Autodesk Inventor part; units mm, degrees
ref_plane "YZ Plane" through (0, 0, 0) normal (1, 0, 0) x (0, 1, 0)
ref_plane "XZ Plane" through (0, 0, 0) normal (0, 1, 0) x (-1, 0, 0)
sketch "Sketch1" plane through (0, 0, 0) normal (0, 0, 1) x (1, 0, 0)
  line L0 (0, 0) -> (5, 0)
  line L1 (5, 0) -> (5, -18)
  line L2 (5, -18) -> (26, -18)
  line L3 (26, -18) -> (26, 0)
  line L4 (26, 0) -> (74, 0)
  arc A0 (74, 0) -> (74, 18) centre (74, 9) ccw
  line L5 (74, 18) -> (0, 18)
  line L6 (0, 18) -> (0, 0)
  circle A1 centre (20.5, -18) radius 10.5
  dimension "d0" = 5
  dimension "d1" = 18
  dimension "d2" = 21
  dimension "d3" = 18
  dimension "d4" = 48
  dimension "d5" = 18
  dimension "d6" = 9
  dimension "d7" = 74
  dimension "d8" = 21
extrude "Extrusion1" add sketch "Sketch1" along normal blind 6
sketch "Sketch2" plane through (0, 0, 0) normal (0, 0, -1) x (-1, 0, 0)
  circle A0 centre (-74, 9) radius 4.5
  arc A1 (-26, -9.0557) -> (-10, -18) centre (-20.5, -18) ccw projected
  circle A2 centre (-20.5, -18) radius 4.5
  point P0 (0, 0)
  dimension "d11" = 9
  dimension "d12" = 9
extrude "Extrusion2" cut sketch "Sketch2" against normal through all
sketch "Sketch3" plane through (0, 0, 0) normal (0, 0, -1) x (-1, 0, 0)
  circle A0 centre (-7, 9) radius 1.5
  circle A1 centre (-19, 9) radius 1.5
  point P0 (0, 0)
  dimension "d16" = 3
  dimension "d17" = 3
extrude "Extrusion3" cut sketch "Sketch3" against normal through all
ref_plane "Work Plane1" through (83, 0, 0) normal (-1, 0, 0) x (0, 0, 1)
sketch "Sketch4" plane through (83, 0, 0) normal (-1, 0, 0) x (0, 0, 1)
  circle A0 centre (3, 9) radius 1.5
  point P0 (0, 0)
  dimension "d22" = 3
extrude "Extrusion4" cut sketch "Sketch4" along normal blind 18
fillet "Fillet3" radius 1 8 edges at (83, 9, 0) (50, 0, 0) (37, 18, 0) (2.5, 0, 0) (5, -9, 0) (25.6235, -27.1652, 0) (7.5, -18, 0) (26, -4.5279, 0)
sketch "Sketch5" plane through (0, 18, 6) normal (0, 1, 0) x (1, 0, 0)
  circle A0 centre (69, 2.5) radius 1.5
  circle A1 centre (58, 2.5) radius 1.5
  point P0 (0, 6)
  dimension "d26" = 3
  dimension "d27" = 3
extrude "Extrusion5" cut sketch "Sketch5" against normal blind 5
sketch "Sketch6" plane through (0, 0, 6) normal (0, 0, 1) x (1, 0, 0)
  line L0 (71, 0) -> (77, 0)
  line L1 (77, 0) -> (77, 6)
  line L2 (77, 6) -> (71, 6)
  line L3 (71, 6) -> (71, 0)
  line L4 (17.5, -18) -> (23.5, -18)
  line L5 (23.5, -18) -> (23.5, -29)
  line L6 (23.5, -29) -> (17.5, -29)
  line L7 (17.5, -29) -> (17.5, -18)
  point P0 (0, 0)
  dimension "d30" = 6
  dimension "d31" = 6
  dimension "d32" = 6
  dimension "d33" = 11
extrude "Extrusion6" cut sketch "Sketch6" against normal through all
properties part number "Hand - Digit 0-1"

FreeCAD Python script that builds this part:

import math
import FreeCAD as App
import Part
import Sketcher


def edges_at(feature, points):
    """Names of the edges that pass closest to the given points."""
    edges = feature.Shape.Edges
    near = lambda p: min(range(len(edges)), key=lambda i: edges[i].distToShape(Part.Vertex(*p))[0])
    return sorted({f"Edge{near(p) + 1}" for p in points})


def add_polygon(sketch, points):
    """Adds a closed chain of lines whose ends are joined by coincident constraints."""
    first, n = sketch.GeometryCount, len(points)
    for a, b in zip(points, points[1:] + points[:1]):
        sketch.addGeometry(Part.LineSegment(App.Vector(*a, 0), App.Vector(*b, 0)), False)
    for i in range(n):
        sketch.addConstraint(Sketcher.Constraint("Coincident", first + i, 2, first + (i + 1) % n, 1))

doc = App.newDocument("Part")
params = doc.addObject("Spreadsheet::Sheet", "Params")
for row, (alias, value) in enumerate([
    ("sketch1_radius", "9 mm"),
    ("sketch1_radius2", "10.5 mm"),
    ("sketch1_width", "5 mm"),
    ("sketch1_width2", "48 mm"),
    ("sketch1_width3", "74 mm"),
    ("pad1_length", "6 mm"),
    ("sketch2_diameter", "9 mm"),
    ("sketch3_diameter", "3 mm"),
    ("sketch4_diameter", "3 mm"),
    ("pocket3_length", "18 mm"),
    ("fillet_radius", "1 mm"),
    ("sketch5_diameter", "3 mm"),
    ("pocket4_length", "5 mm"),
    ("sketch6_width", "6 mm"),
    ("sketch6_height", "11 mm"),
], start=1):
    params.set(f"A{row}", alias)
    params.set(f"B{row}", "=" + value)
    params.setAlias(f"B{row}", alias)

body = doc.addObject("PartDesign::Body", "Body")

sketch1 = doc.addObject("Sketcher::SketchObject", "Sketch")
body.addObject(sketch1)
sketch1.AttachmentSupport = (doc.XY_Plane, [""])
sketch1.MapMode = "FlatFace"
sketch1.addGeometry([
    Part.LineSegment(App.Vector(0, 18, 0), App.Vector(0, 0, 0)),
    Part.LineSegment(App.Vector(0, 0, 0), App.Vector(5, 0, 0)),
    Part.LineSegment(App.Vector(5, 0, 0), App.Vector(5, -18, 0)),
    Part.LineSegment(App.Vector(5, -18, 0), App.Vector(10, -18, 0)),
    Part.ArcOfCircle(Part.Circle(App.Vector(20, -18, 0), App.Vector(0, 0, 1), 10), math.radians(180), math.radians(418)),
    Part.LineSegment(App.Vector(26, -9, 0), App.Vector(26, 0, 0)),
    Part.LineSegment(App.Vector(26, 0, 0), App.Vector(74, 0, 0)),
    Part.ArcOfCircle(Part.Circle(App.Vector(74, 9, 0), App.Vector(0, 0, 1), 9), math.radians(-90), math.radians(90)),
    Part.LineSegment(App.Vector(74, 18, 0), App.Vector(0, 18, 0)),
], False)
sketch1.addConstraint([
    Sketcher.Constraint("Coincident", 0, 2, 1, 1),
    Sketcher.Constraint("Coincident", 1, 2, 2, 1),
    Sketcher.Constraint("Coincident", 2, 2, 3, 1),
    Sketcher.Constraint("Coincident", 3, 2, 4, 1),
    Sketcher.Constraint("Coincident", 4, 2, 5, 1),
    Sketcher.Constraint("Coincident", 5, 2, 6, 1),
    Sketcher.Constraint("Tangent", 6, 2, 7, 1),
    Sketcher.Constraint("Tangent", 7, 2, 8, 1),
    Sketcher.Constraint("Coincident", 8, 2, 0, 1),
    Sketcher.Constraint("Vertical", 0),
    Sketcher.Constraint("Horizontal", 1),
    Sketcher.Constraint("Vertical", 2),
    Sketcher.Constraint("Horizontal", 3),
    Sketcher.Constraint("Vertical", 5),
    Sketcher.Constraint("Horizontal", 6),
    Sketcher.Constraint("Horizontal", 8),
    Sketcher.Constraint("Coincident", 0, 2, -1, 1),
    Sketcher.Constraint("PointOnObject", 5, 2, -1),
    Sketcher.Constraint("Horizontal", 4, 3, 2, 2),
    Sketcher.Constraint("Equal", 1, 3),
    Sketcher.Constraint("Equal", 0, 2),
    Sketcher.Constraint("Radius", 7, 9.0),
    Sketcher.Constraint("Radius", 4, 10.5),
    Sketcher.Constraint("DistanceX", 1, 1, 1, 2, 5.0),
    Sketcher.Constraint("DistanceX", 6, 1, 6, 2, 48.0),
    Sketcher.Constraint("DistanceX", 8, 2, 8, 1, 74.0),
])
sketch1.setExpression("Constraints[21]", "Params.sketch1_radius")
sketch1.setExpression("Constraints[22]", "Params.sketch1_radius2")
sketch1.setExpression("Constraints[23]", "Params.sketch1_width")
sketch1.setExpression("Constraints[24]", "Params.sketch1_width2")
sketch1.setExpression("Constraints[25]", "Params.sketch1_width3")
pad1 = doc.addObject("PartDesign::Pad", "Pad")
body.addObject(pad1)
pad1.Profile = sketch1
pad1.setExpression("Length", "Params.pad1_length")

sketch2 = doc.addObject("Sketcher::SketchObject", "Sketch001")
body.addObject(sketch2)
sketch2.AttachmentSupport = (doc.XY_Plane, [""])
sketch2.MapMode = "FlatFace"
sketch2.addGeometry([
    Part.Circle(App.Vector(74, 9, 0), App.Vector(0, 0, 1), 4.5),
    Part.Circle(App.Vector(20.5, -18, 0), App.Vector(0, 0, 1), 4.5),
], False)
sketch2.addConstraint([
    Sketcher.Constraint("Equal", 0, 1),
    Sketcher.Constraint("Diameter", 0, 9.0),
    Sketcher.Constraint("DistanceY", -1, 1, 0, 3, 9.0),
    Sketcher.Constraint("DistanceX", -1, 1, 0, 3, 74.0),
    Sketcher.Constraint("DistanceY", 1, 3, -1, 1, 18.0),
    Sketcher.Constraint("DistanceX", -1, 1, 1, 3, 20.5),
])
sketch2.setExpression("Constraints[1]", "Params.sketch2_diameter")
pocket1 = doc.addObject("PartDesign::Pocket", "Pocket")
body.addObject(pocket1)
pocket1.Profile = sketch2
pocket1.Type = "ThroughAll"
pocket1.Reversed = True

sketch3 = doc.addObject("Sketcher::SketchObject", "Sketch002")
body.addObject(sketch3)
sketch3.AttachmentSupport = (doc.XY_Plane, [""])
sketch3.MapMode = "FlatFace"
sketch3.addGeometry([
    Part.Circle(App.Vector(7, 9, 0), App.Vector(0, 0, 1), 1.5),
    Part.Circle(App.Vector(19, 9, 0), App.Vector(0, 0, 1), 1.5),
], False)
sketch3.addConstraint([
    Sketcher.Constraint("Equal", 0, 1),
    Sketcher.Constraint("Horizontal", 0, 3, 1, 3),
    Sketcher.Constraint("Diameter", 0, 3.0),
    Sketcher.Constraint("DistanceX", -1, 1, 0, 3, 7.0),
    Sketcher.Constraint("DistanceY", -1, 1, 0, 3, 9.0),
    Sketcher.Constraint("DistanceX", -1, 1, 1, 3, 19.0),
])
sketch3.setExpression("Constraints[2]", "Params.sketch3_diameter")
pocket2 = doc.addObject("PartDesign::Pocket", "Pocket001")
body.addObject(pocket2)
pocket2.Profile = sketch3
pocket2.Type = "ThroughAll"
pocket2.Reversed = True

sketch4 = doc.addObject("Sketcher::SketchObject", "Sketch003")
body.addObject(sketch4)
sketch4.AttachmentSupport = (doc.YZ_Plane, [""])
sketch4.MapMode = "FlatFace"
sketch4.AttachmentOffset = App.Placement(App.Vector(0, 0, 83), App.Rotation())
sketch4.addGeometry(Part.Circle(App.Vector(9, 3, 0), App.Vector(0, 0, 1), 1.5), False)
sketch4.addConstraint([
    Sketcher.Constraint("Diameter", 0, 3.0),
    Sketcher.Constraint("DistanceY", -1, 1, 0, 3, 3.0),
    Sketcher.Constraint("DistanceX", -1, 1, 0, 3, 9.0),
])
sketch4.setExpression("Constraints[0]", "Params.sketch4_diameter")
pocket3 = doc.addObject("PartDesign::Pocket", "Pocket002")
body.addObject(pocket3)
pocket3.Profile = sketch4
pocket3.setExpression("Length", "Params.pocket3_length")
doc.recompute()

fillet = doc.addObject("PartDesign::Fillet", "Fillet")
body.addObject(fillet)
fillet.Base = (pocket3, edges_at(pocket3, [
    (83, 9, 0),
    (50, 0, 0),
    (37, 18, 0),
    (2.5, 0, 0),
    (5, -9, 0),
    (25.623, -27.165, 0),
    (7.5, -18, 0),
    (26, -4.528, 0),
]))
fillet.setExpression("Radius", "Params.fillet_radius")

sketch5 = doc.addObject("Sketcher::SketchObject", "Sketch004")
body.addObject(sketch5)
sketch5.AttachmentSupport = (doc.XZ_Plane, [""])
sketch5.MapMode = "FlatFace"
sketch5.AttachmentOffset = App.Placement(App.Vector(0, 0, -18), App.Rotation())
sketch5.addGeometry([
    Part.Circle(App.Vector(69, 3.5, 0), App.Vector(0, 0, 1), 1.5),
    Part.Circle(App.Vector(58, 3.5, 0), App.Vector(0, 0, 1), 1.5),
], False)
sketch5.addConstraint([
    Sketcher.Constraint("Equal", 0, 1),
    Sketcher.Constraint("Horizontal", 0, 3, 1, 3),
    Sketcher.Constraint("Diameter", 0, 3.0),
    Sketcher.Constraint("DistanceX", -1, 1, 0, 3, 69.0),
    Sketcher.Constraint("DistanceX", -1, 1, 1, 3, 58.0),
    Sketcher.Constraint("DistanceY", -1, 1, 0, 3, 3.5),
])
sketch5.setExpression("Constraints[2]", "Params.sketch5_diameter")
pocket4 = doc.addObject("PartDesign::Pocket", "Pocket003")
body.addObject(pocket4)
pocket4.Profile = sketch5
pocket4.setExpression("Length", "Params.pocket4_length")
pocket4.Reversed = True

sketch6 = doc.addObject("Sketcher::SketchObject", "Sketch005")
body.addObject(sketch6)
sketch6.AttachmentSupport = (doc.XY_Plane, [""])
sketch6.MapMode = "FlatFace"
sketch6.AttachmentOffset = App.Placement(App.Vector(0, 0, 6), App.Rotation())
add_polygon(sketch6, [(71, 6), (71, 0), (77, 0), (77, 6)])
add_polygon(sketch6, [(24, -18), (18, -18), (18, -29), (24, -29)])
sketch6.addConstraint([
    Sketcher.Constraint("Vertical", 0),
    Sketcher.Constraint("Horizontal", 1),
    Sketcher.Constraint("Vertical", 2),
    Sketcher.Constraint("Horizontal", 3),
    Sketcher.Constraint("Horizontal", 4),
    Sketcher.Constraint("Vertical", 5),
    Sketcher.Constraint("Horizontal", 6),
    Sketcher.Constraint("Vertical", 7),
    Sketcher.Constraint("PointOnObject", 0, 2, -1),
    Sketcher.Constraint("Equal", 3, 4),
    Sketcher.Constraint("Equal", 6, 0),
    Sketcher.Constraint("DistanceX", 1, 1, 1, 2, 6.0),
    Sketcher.Constraint("DistanceY", 5, 2, 5, 1, 11.0),
    Sketcher.Constraint("DistanceX", -1, 1, 0, 2, 71.0),
    Sketcher.Constraint("DistanceY", 4, 2, -1, 1, 18.0),
    Sketcher.Constraint("DistanceX", -1, 1, 4, 2, 17.5),
])
sketch6.setExpression("Constraints[19]", "Params.sketch6_width")
sketch6.setExpression("Constraints[20]", "Params.sketch6_height")
pocket5 = doc.addObject("PartDesign::Pocket", "Pocket004")
body.addObject(pocket5)
pocket5.Profile = sketch6
pocket5.Type = "ThroughAll"

doc.recompute()
